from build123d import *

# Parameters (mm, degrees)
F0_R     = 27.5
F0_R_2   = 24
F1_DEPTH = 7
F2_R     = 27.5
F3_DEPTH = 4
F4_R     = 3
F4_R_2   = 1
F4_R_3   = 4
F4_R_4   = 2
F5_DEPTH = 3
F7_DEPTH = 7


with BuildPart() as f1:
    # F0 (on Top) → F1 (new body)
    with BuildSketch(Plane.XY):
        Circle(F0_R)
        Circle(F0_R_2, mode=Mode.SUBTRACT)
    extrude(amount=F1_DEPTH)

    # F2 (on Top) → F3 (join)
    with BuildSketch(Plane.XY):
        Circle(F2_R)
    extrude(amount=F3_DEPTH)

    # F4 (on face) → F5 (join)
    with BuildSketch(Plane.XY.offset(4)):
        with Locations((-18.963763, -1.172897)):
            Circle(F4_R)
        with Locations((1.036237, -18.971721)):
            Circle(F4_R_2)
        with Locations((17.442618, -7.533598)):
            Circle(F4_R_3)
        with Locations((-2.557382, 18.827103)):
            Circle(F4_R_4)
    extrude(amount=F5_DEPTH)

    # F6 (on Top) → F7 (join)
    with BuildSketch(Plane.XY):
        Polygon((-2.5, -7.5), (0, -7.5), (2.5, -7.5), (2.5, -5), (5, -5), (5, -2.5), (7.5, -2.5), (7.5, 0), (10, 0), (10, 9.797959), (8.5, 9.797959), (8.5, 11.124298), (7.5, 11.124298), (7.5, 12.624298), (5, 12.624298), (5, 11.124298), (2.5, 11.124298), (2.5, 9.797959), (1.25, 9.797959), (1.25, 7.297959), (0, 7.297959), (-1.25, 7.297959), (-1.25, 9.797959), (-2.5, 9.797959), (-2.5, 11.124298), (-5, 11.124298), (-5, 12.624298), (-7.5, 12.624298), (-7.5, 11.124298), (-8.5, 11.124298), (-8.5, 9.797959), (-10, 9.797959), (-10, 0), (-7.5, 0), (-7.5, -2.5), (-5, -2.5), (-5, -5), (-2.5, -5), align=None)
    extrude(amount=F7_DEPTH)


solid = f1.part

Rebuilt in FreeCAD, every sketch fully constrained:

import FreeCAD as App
import Part
import Sketcher

V = App.Vector
Q = App.Units.Quantity


def add_polygon(sketch, points):
    """Adds a closed chain of lines whose ends are joined by coincident constraints."""
    first, n = sketch.GeometryCount, len(points)
    for a, b in zip(points, points[1:] + points[:1]):
        sketch.addGeometry(Part.LineSegment(App.Vector(*a, 0), App.Vector(*b, 0)), False)
    for i in range(n):
        sketch.addConstraint(Sketcher.Constraint("Coincident", first + i, 2, first + (i + 1) % n, 1))

doc = App.newDocument("Part")
body = doc.addObject("PartDesign::Body", "Body")

# Sketch on XY plane
sketch1 = body.newObject("Sketcher::SketchObject", "Sketch")
sketch1.AttachmentSupport = (doc.getObject("XY_Plane"), [""])
sketch1.MapMode = "FlatFace"
sketch1.addGeometry([
    Part.Circle(V(0, 0, 0), V(0, 0, 1), 28),
    Part.Circle(V(0, 0, 0), V(0, 0, 1), 24),
], False)
sketch1.addConstraint([
    Sketcher.Constraint("Coincident", 0, 3, -1, 1),
    Sketcher.Constraint("Coincident", 1, 3, -1, 1),
    Sketcher.Constraint("Diameter", 0, Q("55 mm")),
    Sketcher.Constraint("Diameter", 1, Q("48 mm")),
])
pad1 = body.newObject("PartDesign::Pad", "Pad")
pad1.Profile = sketch1
pad1.Length = 7

# Sketch on XY plane
sketch2 = body.newObject("Sketcher::SketchObject", "Sketch001")
sketch2.AttachmentSupport = (doc.getObject("XY_Plane"), [""])
sketch2.MapMode = "FlatFace"
sketch2.addGeometry(Part.Circle(V(0, 0, 0), V(0, 0, 1), 28), False)
sketch2.addConstraint([
    Sketcher.Constraint("Coincident", 0, 3, -1, 1),
    Sketcher.Constraint("Diameter", 0, Q("55 mm")),
])
pad2 = body.newObject("PartDesign::Pad", "Pad001")
pad2.Profile = sketch2
pad2.Length = 4

# Sketch on XY plane
sketch3 = body.newObject("Sketcher::SketchObject", "Sketch002")
sketch3.AttachmentSupport = (doc.getObject("XY_Plane"), [""])
sketch3.MapMode = "FlatFace"
sketch3.AttachmentOffset = App.Placement(V(0, 0, 4), App.Rotation())
sketch3.addGeometry([
    Part.Circle(V(-19, -1.2, 0), V(0, 0, 1), 3),
    Part.Circle(V(1, -19, 0), V(0, 0, 1), 1),
    Part.Circle(V(17.4, -7.5, 0), V(0, 0, 1), 4),
    Part.Circle(V(-2.6, 18.8, 0), V(0, 0, 1), 2),
], False)
sketch3.addConstraint([
    Sketcher.Constraint("Diameter", 0, Q("6 mm")),
    Sketcher.Constraint("Diameter", 1, Q("2 mm")),
    Sketcher.Constraint("Diameter", 2, Q("8 mm")),
    Sketcher.Constraint("Diameter", 3, Q("4 mm")),
    Sketcher.Constraint("DistanceX", 0, 3, 1, 3, Q("20 mm")),
    Sketcher.Constraint("DistanceY", 0, 3, 3, 3, Q("20 mm")),
    Sketcher.Constraint("DistanceX", 3, 3, 2, 3, Q("20 mm")),
    Sketcher.Constraint("DistanceY", 2, 3, 0, 3, Q("6.360701 mm")),
    Sketcher.Constraint("DistanceY", 1, 3, -1, 1, Q("18.971721 mm")),
    Sketcher.Constraint("DistanceX", 3, 3, -1, 1, Q("2.557382 mm")),
    Sketcher.Constraint("DistanceX", 1, 3, 2, 3, Q("16.406381 mm")),
    Sketcher.Constraint("DistanceY", 0, 3, -1, 1, Q("1.172897 mm")),
])
pad3 = body.newObject("PartDesign::Pad", "Pad002")
pad3.Profile = sketch3
pad3.Length = 3

# Sketch on XY plane
sketch4 = body.newObject("Sketcher::SketchObject", "Sketch003")
sketch4.AttachmentSupport = (doc.getObject("XY_Plane"), [""])
sketch4.MapMode = "FlatFace"
add_polygon(sketch4, [(-2.5, -7.5), (2.5, -7.5), (2.5, -5), (5, -5), (5, -2.5), (7.5, -2.5), (7.5, 0), (10, 0), (10, 9.8), (8.5, 9.8), (8.5, 11.1), (7.5, 11.1), (7.5, 12.6), (5, 12.6), (5, 11.1), (2.5, 11.1), (2.5, 9.8), (1.2, 9.8), (1.2, 7.3), (-1.2, 7.3), (-1.2, 9.8), (-2.5, 9.8), (-2.5, 11.1), (-5, 11.1), (-5, 12.6), (-7.5, 12.6), (-7.5, 11.1), (-8.5, 11.1), (-8.5, 9.8), (-10, 9.8), (-10, 0), (-7.5, 0), (-7.5, -2.5), (-5, -2.5), (-5, -5), (-2.5, -5)])  # lines 0-35
sketch4.addConstraint([
    Sketcher.Constraint("Horizontal", 0),
    Sketcher.Constraint("Vertical", 1),
    Sketcher.Constraint("Horizontal", 2),
    Sketcher.Constraint("Vertical", 3),
    Sketcher.Constraint("Horizontal", 4),
    Sketcher.Constraint("Vertical", 5),
    Sketcher.Constraint("Horizontal", 6),
    Sketcher.Constraint("Vertical", 7),
    Sketcher.Constraint("Horizontal", 8),
    Sketcher.Constraint("Vertical", 9),
    Sketcher.Constraint("Horizontal", 10),
    Sketcher.Constraint("Vertical", 11),
    Sketcher.Constraint("Horizontal", 12),
    Sketcher.Constraint("Vertical", 13),
    Sketcher.Constraint("Horizontal", 14),
    Sketcher.Constraint("Vertical", 15),
    Sketcher.Constraint("Horizontal", 16),
    Sketcher.Constraint("Vertical", 17),
    Sketcher.Constraint("Horizontal", 18),
    Sketcher.Constraint("Vertical", 19),
    Sketcher.Constraint("Horizontal", 20),
    Sketcher.Constraint("Vertical", 21),
    Sketcher.Constraint("Horizontal", 22),
    Sketcher.Constraint("Vertical", 23),
    Sketcher.Constraint("Horizontal", 24),
    Sketcher.Constraint("Vertical", 25),
    Sketcher.Constraint("Horizontal", 26),
    Sketcher.Constraint("Vertical", 27),
    Sketcher.Constraint("Horizontal", 28),
    Sketcher.Constraint("Vertical", 29),
    Sketcher.Constraint("Horizontal", 30),
    Sketcher.Constraint("Vertical", 31),
    Sketcher.Constraint("Horizontal", 32),
    Sketcher.Constraint("Vertical", 33),
    Sketcher.Constraint("Horizontal", 34),
    Sketcher.Constraint("Vertical", 35),
    Sketcher.Constraint("Symmetric", 6, 2, 29, 2, -1, 1),
    Sketcher.Constraint("Symmetric", 16, 2, 19, 2, -2),
    Sketcher.Constraint("Symmetric", 14, 2, 21, 2, -2),
    Sketcher.Constraint("Symmetric", 12, 2, 23, 2, -2),
    Sketcher.Constraint("Symmetric", 10, 2, 25, 2, -2),
    Sketcher.Constraint("Symmetric", 8, 2, 27, 2, -2),
    Sketcher.Constraint("Symmetric", 5, 2, 30, 2, -2),
    Sketcher.Constraint("Symmetric", 3, 2, 32, 2, -2),
    Sketcher.Constraint("Symmetric", 1, 2, 34, 2, -2),
    Sketcher.Constraint("Horizontal", 10, 2, 13, 2),
    Sketcher.Constraint("Horizontal", 8, 2, 15, 2),
    Sketcher.Constraint("Vertical", 5, 2, 10, 2),
    Sketcher.Constraint("Vertical", 3, 2, 12, 2),
    Sketcher.Constraint("Vertical", 1, 2, 14, 2),
    Sketcher.Constraint("Equal", 2, 4),
    Sketcher.Constraint("Equal", 4, 6),
    Sketcher.Constraint("Equal", 14, 18),
    Sketcher.Constraint("Equal", 34, 1),
    Sketcher.Constraint("Equal", 1, 3),
    Sketcher.Constraint("Equal", 3, 5),
    Sketcher.Constraint("Equal", 28, 11),
    Sketcher.Constraint("Equal", 5, 17),
    Sketcher.Constraint("DistanceX", 0, 1, 0, 2, Q("5 mm")),
    Sketcher.Constraint("DistanceX", 10, 2, 10, 1, Q("1 mm")),
    Sketcher.Constraint("DistanceX", 2, 1, 2, 2, Q("2.5 mm")),
    Sketcher.Constraint("DistanceY", 7, 1, 7, 2, Q("9.797959 mm")),
    Sketcher.Constraint("DistanceY", 9, 1, 9, 2, Q("1.326339 mm")),
])
pad4 = body.newObject("PartDesign::Pad", "Pad003")
pad4.Profile = sketch4
pad4.Length = 7

doc.recompute()
